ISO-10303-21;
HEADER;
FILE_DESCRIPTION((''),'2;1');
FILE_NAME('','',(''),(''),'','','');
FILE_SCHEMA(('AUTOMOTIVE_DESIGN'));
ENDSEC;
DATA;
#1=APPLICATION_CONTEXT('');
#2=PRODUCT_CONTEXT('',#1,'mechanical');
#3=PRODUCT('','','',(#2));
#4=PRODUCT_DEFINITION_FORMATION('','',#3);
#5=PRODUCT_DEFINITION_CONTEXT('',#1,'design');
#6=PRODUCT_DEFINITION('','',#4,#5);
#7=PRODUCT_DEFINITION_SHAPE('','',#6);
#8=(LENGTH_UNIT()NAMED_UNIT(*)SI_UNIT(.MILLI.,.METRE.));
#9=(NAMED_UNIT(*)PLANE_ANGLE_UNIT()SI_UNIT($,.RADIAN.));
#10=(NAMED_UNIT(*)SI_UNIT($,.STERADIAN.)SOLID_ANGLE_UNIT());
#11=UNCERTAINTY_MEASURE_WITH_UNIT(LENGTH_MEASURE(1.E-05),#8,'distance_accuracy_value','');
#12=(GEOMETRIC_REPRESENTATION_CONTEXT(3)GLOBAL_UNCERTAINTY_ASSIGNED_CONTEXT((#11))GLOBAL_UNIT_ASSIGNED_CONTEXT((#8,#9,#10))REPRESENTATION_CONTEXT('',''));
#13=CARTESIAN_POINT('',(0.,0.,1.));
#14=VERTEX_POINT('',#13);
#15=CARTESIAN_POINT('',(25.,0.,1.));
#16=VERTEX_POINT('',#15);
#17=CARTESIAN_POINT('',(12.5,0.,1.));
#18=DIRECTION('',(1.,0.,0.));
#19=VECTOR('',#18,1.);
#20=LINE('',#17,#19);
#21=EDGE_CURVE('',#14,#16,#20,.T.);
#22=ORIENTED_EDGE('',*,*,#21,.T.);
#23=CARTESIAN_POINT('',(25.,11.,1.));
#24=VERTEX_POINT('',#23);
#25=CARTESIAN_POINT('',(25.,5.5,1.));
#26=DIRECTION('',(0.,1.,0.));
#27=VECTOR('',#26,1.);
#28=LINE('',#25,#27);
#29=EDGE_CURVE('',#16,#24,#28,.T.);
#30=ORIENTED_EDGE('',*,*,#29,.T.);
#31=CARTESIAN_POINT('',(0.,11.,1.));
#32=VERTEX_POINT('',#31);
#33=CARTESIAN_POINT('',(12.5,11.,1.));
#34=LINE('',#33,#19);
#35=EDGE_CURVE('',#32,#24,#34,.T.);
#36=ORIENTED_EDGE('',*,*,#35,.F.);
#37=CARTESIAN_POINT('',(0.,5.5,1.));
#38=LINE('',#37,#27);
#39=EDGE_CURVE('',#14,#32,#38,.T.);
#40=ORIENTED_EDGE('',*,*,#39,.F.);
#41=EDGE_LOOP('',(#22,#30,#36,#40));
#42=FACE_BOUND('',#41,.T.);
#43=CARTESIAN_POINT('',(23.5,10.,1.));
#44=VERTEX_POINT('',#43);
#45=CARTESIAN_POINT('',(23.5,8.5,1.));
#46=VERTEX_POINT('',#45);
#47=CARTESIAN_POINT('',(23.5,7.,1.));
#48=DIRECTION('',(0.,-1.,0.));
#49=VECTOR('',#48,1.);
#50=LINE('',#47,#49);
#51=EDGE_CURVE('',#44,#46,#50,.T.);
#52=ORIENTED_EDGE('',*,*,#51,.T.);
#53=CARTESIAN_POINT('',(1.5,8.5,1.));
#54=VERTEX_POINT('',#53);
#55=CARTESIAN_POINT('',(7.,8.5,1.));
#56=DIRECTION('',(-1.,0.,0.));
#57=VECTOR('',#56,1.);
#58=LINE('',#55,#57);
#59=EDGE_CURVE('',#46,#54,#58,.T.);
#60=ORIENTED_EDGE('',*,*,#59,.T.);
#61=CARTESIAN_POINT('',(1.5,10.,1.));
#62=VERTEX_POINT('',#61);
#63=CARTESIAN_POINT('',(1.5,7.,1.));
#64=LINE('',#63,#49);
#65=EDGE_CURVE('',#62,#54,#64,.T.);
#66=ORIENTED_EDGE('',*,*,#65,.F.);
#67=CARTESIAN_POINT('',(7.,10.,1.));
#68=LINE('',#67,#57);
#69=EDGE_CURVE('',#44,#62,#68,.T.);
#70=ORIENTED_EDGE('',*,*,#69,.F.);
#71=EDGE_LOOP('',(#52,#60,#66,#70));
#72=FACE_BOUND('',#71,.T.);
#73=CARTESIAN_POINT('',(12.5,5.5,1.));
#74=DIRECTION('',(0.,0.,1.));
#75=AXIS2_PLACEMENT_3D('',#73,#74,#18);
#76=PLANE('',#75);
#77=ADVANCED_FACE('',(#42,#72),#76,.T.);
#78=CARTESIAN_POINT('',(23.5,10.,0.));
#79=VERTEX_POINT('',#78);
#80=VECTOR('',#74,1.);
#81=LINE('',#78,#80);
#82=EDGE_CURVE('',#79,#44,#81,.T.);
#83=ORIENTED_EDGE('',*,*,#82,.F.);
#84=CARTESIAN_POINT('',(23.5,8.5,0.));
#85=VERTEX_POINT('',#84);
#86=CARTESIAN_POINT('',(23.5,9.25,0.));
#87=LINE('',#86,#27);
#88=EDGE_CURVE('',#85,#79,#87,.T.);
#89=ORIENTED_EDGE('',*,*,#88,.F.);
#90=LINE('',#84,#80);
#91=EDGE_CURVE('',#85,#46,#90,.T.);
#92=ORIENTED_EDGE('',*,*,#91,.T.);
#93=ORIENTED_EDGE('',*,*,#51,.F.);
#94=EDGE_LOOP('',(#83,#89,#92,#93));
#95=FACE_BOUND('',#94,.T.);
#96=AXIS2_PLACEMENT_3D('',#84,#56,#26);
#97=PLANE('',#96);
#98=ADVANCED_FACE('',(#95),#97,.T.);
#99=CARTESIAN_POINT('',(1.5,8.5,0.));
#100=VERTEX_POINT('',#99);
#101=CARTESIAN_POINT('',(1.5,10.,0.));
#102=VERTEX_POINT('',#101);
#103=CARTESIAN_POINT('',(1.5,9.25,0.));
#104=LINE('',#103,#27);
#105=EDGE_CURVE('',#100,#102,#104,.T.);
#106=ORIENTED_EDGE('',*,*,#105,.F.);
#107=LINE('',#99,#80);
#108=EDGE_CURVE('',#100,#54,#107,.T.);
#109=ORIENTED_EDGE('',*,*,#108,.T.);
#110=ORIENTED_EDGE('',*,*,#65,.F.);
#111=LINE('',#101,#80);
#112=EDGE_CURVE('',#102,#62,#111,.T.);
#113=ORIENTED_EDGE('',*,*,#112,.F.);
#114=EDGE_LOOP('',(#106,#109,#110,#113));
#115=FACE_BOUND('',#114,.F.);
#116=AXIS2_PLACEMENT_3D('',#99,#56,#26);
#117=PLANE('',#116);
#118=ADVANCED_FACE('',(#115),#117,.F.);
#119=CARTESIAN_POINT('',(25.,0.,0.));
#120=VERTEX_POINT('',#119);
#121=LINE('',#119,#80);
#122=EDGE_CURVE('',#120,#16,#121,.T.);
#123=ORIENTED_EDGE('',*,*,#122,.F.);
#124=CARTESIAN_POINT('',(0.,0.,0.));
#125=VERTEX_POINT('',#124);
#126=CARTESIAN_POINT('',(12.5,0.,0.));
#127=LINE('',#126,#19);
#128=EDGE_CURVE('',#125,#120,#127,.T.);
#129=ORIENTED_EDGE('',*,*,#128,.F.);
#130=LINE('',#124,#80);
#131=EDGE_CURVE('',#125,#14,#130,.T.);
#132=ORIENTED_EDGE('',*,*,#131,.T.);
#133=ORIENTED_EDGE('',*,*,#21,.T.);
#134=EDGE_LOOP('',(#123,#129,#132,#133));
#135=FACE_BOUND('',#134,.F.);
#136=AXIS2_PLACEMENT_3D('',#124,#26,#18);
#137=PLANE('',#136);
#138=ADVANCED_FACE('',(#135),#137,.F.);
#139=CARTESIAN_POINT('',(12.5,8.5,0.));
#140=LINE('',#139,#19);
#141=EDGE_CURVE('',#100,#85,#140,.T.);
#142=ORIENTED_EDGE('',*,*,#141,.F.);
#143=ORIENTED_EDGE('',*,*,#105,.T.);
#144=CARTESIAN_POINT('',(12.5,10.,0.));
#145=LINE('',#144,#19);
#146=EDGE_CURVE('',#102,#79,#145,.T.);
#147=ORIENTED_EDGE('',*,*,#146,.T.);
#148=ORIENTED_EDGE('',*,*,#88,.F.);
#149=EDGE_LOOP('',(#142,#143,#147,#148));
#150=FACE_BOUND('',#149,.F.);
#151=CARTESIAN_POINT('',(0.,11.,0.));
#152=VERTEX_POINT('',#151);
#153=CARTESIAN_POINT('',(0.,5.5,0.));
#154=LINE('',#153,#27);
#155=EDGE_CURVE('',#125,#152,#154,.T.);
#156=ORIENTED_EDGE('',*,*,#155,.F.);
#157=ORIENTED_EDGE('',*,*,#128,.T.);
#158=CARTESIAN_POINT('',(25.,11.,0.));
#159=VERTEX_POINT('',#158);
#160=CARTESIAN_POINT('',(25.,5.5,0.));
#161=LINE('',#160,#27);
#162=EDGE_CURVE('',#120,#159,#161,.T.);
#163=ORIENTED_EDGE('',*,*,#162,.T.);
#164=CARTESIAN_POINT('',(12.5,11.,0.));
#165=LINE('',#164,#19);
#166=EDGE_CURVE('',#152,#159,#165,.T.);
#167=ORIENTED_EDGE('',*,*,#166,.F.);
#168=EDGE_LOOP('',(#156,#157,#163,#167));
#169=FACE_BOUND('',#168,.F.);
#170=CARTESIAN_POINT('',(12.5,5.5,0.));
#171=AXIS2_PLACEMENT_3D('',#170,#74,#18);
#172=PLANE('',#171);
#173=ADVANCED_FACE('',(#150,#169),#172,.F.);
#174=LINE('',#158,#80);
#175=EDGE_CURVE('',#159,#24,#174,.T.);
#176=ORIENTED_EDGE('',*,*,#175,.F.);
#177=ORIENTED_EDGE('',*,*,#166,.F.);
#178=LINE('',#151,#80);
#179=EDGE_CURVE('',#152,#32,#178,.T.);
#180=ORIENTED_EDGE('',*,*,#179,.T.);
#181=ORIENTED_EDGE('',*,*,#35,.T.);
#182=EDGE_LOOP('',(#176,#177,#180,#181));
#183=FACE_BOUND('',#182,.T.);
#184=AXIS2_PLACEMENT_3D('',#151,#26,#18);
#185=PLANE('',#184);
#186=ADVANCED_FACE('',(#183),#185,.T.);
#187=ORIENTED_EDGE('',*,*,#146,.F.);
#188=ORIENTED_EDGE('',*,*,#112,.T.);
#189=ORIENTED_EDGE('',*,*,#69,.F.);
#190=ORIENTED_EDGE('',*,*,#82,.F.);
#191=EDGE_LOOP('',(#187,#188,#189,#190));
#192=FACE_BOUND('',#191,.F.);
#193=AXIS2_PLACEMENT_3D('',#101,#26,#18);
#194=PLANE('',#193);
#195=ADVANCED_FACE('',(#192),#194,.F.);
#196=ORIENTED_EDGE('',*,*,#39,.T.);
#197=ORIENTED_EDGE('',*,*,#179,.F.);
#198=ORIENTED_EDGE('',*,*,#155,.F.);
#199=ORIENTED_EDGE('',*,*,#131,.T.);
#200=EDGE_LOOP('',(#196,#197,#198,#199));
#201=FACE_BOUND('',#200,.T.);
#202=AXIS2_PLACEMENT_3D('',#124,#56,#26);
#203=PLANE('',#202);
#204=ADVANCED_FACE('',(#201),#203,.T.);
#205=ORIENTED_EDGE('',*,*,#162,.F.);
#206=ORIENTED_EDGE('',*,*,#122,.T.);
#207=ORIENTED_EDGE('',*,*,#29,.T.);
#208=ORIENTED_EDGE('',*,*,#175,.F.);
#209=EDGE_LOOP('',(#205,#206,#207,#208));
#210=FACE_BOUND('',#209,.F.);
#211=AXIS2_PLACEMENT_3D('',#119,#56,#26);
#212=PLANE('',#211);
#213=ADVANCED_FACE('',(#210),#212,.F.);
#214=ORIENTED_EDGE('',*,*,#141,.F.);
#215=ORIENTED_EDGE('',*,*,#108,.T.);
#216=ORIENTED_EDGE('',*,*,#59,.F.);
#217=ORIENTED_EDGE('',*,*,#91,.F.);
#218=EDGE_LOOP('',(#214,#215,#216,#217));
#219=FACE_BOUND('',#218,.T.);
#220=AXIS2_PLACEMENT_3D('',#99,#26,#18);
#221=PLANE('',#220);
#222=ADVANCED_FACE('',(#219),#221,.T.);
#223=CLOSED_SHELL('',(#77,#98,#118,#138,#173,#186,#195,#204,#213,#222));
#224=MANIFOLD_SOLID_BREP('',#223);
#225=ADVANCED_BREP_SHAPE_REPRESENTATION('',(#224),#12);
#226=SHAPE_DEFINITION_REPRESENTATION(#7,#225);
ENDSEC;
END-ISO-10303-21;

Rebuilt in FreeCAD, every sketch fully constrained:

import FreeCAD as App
import Part
import Sketcher
from FreeCAD import Vector
Q = App.Units.Quantity


def add_polygon(sketch, points):
    """Adds a closed chain of lines whose ends are joined by coincident constraints."""
    first, n = sketch.GeometryCount, len(points)
    for a, b in zip(points, points[1:] + points[:1]):
        sketch.addGeometry(Part.LineSegment(App.Vector(*a, 0), App.Vector(*b, 0)), False)
    for i in range(n):
        sketch.addConstraint(Sketcher.Constraint("Coincident", first + i, 2, first + (i + 1) % n, 1))

doc = App.newDocument("Part")
body = doc.addObject("PartDesign::Body", "Body")

# Sketch on XY plane
sketch1 = body.newObject("Sketcher::SketchObject", "Sketch")
sketch1.AttachmentSupport = (doc.getObject("XY_Plane"), [""])
sketch1.MapMode = "FlatFace"
add_polygon(sketch1, [(1.5, 10), (1.5, 8.5), (23.5, 8.5), (23.5, 10)])  # lines 0-3
sketch1.addConstraint([
    Sketcher.Constraint("Vertical", 0),
    Sketcher.Constraint("Horizontal", 1),
    Sketcher.Constraint("Vertical", 2),
    Sketcher.Constraint("Horizontal", 3),
    Sketcher.Constraint("DistanceX", 1, 1, 1, 2, Q("22 mm")),
    Sketcher.Constraint("DistanceY", 0, 2, 0, 1, Q("1.5 mm")),
    Sketcher.Constraint("DistanceY", -1, 1, 2, 2, Q("10 mm")),
    Sketcher.Constraint("DistanceX", -1, 1, 0, 2, Q("1.5 mm")),
])
pad1 = body.newObject("PartDesign::Pad", "Pad")
pad1.Profile = sketch1
pad1.Length = 2
body2 = doc.addObject("PartDesign::Body", "Body001")

# Sketch on XY plane
sketch2 = body2.newObject("Sketcher::SketchObject", "Sketch001")
sketch2.AttachmentSupport = (doc.getObject("XY_Plane001"), [""])
sketch2.MapMode = "FlatFace"
add_polygon(sketch2, [(0, 11), (0, 0), (25, 0), (25, 11)])  # lines 0-3
sketch2.addConstraint([
    Sketcher.Constraint("Vertical", 0),
    Sketcher.Constraint("Horizontal", 1),
    Sketcher.Constraint("Vertical", 2),
    Sketcher.Constraint("Horizontal", 3),
    Sketcher.Constraint("Coincident", 0, 2, -1, 1),
    Sketcher.Constraint("DistanceX", 1, 1, 1, 2, Q("25 mm")),
    Sketcher.Constraint("DistanceY", 0, 2, 0, 1, Q("11 mm")),
])
pad2 = body2.newObject("PartDesign::Pad", "Pad001")
pad2.Profile = sketch2
pad2.Length = 1
doc.recompute()

boolean = body2.newObject("PartDesign::Boolean", "Boolean")
boolean.Type = "Cut"
boolean.addObjects([body])

doc.recompute()
